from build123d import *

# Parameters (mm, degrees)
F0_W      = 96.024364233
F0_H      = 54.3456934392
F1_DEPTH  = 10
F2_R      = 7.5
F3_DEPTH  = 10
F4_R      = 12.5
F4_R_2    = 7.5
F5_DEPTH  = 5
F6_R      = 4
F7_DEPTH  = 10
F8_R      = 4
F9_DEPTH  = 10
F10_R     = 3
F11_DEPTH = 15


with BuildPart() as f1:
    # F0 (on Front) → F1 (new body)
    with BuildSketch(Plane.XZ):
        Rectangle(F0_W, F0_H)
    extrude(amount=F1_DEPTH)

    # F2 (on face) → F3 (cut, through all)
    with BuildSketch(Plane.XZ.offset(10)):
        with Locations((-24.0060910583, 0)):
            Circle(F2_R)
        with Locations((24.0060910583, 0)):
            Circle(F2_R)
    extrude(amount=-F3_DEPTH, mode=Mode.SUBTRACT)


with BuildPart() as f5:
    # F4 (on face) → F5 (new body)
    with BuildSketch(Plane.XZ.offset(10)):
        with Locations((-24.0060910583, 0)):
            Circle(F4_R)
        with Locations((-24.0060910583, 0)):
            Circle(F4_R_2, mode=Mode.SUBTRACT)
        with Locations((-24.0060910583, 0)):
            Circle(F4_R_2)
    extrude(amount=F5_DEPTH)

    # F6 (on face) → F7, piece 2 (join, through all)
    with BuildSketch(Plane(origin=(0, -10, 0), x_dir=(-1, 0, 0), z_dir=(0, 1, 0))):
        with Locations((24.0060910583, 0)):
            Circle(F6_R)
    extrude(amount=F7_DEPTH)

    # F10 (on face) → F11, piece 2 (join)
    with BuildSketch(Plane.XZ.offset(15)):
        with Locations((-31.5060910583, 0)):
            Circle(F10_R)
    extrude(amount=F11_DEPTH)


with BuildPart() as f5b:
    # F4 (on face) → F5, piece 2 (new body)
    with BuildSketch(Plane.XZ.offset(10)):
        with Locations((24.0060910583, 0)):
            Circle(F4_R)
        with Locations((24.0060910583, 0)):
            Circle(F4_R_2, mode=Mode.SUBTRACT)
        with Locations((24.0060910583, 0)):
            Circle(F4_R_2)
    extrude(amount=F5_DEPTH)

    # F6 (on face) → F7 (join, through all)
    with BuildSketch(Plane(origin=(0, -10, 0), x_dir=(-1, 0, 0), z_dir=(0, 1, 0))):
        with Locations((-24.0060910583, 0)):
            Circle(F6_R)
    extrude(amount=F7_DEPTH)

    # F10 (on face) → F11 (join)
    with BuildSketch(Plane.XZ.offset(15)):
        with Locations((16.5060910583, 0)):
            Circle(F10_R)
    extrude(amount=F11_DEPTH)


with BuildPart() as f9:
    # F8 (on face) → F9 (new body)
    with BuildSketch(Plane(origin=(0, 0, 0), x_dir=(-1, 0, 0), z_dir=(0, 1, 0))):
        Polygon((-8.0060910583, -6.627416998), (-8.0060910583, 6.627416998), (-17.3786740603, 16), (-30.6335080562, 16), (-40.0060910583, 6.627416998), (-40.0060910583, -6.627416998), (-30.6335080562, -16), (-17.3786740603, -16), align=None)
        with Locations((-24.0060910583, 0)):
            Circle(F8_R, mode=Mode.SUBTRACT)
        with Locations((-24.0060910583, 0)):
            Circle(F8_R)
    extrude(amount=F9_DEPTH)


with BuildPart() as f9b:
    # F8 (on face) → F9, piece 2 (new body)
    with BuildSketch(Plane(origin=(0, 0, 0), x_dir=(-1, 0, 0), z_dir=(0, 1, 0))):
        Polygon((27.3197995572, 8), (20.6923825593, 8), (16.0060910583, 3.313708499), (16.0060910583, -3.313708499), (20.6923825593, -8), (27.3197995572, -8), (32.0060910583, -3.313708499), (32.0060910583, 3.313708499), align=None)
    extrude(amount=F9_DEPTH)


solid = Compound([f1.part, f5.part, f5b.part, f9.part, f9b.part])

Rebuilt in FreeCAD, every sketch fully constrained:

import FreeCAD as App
import Part
import Sketcher
from FreeCAD import Vector
Q = App.Units.Quantity

doc = App.newDocument("Part")
body = doc.addObject("PartDesign::Body", "Body")

sketch1 = body.newObject("Sketcher::SketchObject", "Sketch")
sketch1.AttachmentSupport = (doc.getObject("XZ_Plane"), [""])
sketch1.MapMode = "FlatFace"
sketch1.addGeometry(Part.LineSegment(Vector(-48, 27, 0), Vector(-48, -27, 0)), False)
sketch1.addGeometry(Part.LineSegment(Vector(-48, -27, 0), Vector(48, -27, 0)), False)
sketch1.addGeometry(Part.LineSegment(Vector(48, -27, 0), Vector(48, 27, 0)), False)
sketch1.addGeometry(Part.LineSegment(Vector(48, 27, 0), Vector(-48, 27, 0)), False)
sketch1.addConstraint(Sketcher.Constraint("Coincident", 0, 2, 1, 1))
sketch1.addConstraint(Sketcher.Constraint("Coincident", 1, 2, 2, 1))
sketch1.addConstraint(Sketcher.Constraint("Coincident", 2, 2, 3, 1))
sketch1.addConstraint(Sketcher.Constraint("Coincident", 3, 2, 0, 1))
sketch1.addConstraint(Sketcher.Constraint("Vertical", 0))
sketch1.addConstraint(Sketcher.Constraint("Horizontal", 1))
sketch1.addConstraint(Sketcher.Constraint("Vertical", 2))
sketch1.addConstraint(Sketcher.Constraint("Horizontal", 3))
sketch1.addConstraint(Sketcher.Constraint("Symmetric", 0, 2, 2, 2, -1, 1))
sketch1.addConstraint(Sketcher.Constraint("DistanceX", 1, 1, 1, 2, Q("96.024364 mm")))
sketch1.addConstraint(Sketcher.Constraint("DistanceY", 0, 2, 0, 1, Q("54.345693 mm")))
pad1 = body.newObject("PartDesign::Pad", "Pad")
pad1.Profile = sketch1
pad1.Length = 10

sketch2 = body.newObject("Sketcher::SketchObject", "Sketch001")
sketch2.AttachmentSupport = (doc.getObject("XZ_Plane"), [""])
sketch2.MapMode = "FlatFace"
sketch2.AttachmentOffset = App.Placement(Vector(0, 0, 10), App.Rotation())
sketch2.addGeometry(Part.Circle(Vector(-24, 0, 0), Vector(0, 0, 1), 8), False)
sketch2.addGeometry(Part.Circle(Vector(24, 0, 0), Vector(0, 0, 1), 8), False)
sketch2.addConstraint(Sketcher.Constraint("Equal", 0, 1))
sketch2.addConstraint(Sketcher.Constraint("Symmetric", 0, 3, 1, 3, -1, 1))
sketch2.addConstraint(Sketcher.Constraint("PointOnObject", 0, 3, -1))
sketch2.addConstraint(Sketcher.Constraint("Diameter", 0, Q("15 mm")))
sketch2.addConstraint(Sketcher.Constraint("DistanceX", 0, 3, -1, 1, Q("24.006091 mm")))
pocket1 = body.newObject("PartDesign::Pocket", "Pocket")
pocket1.Profile = sketch2
pocket1.Type = "ThroughAll"
body2 = doc.addObject("PartDesign::Body", "Body001")

sketch3 = body2.newObject("Sketcher::SketchObject", "Sketch002")
sketch3.AttachmentSupport = (doc.getObject("XZ_Plane001"), [""])
sketch3.MapMode = "FlatFace"
sketch3.AttachmentOffset = App.Placement(Vector(0, 0, 10), App.Rotation())
sketch3.addGeometry(Part.Circle(Vector(-24, 0, 0), Vector(0, 0, 1), 12), False)
sketch3.addConstraint(Sketcher.Constraint("PointOnObject", 0, 3, -1))
sketch3.addConstraint(Sketcher.Constraint("Diameter", 0, Q("25 mm")))
sketch3.addConstraint(Sketcher.Constraint("DistanceX", 0, 3, -1, 1, Q("24.006091 mm")))
pad2 = body2.newObject("PartDesign::Pad", "Pad001")
pad2.Profile = sketch3
pad2.Length = 5

sketch4 = body2.newObject("Sketcher::SketchObject", "Sketch003")
sketch4.AttachmentSupport = (doc.getObject("XZ_Plane001"), [""])
sketch4.MapMode = "FlatFace"
sketch4.AttachmentOffset = App.Placement(Vector(0, 0, 10), App.Rotation())
sketch4.addGeometry(Part.Circle(Vector(-24, 0, 0), Vector(0, 0, 1), 4), False)
sketch4.addConstraint(Sketcher.Constraint("PointOnObject", 0, 3, -1))
sketch4.addConstraint(Sketcher.Constraint("Diameter", 0, Q("8 mm")))
sketch4.addConstraint(Sketcher.Constraint("DistanceX", 0, 3, -1, 1, Q("24.006091 mm")))
pad3 = body2.newObject("PartDesign::Pad", "Pad002")
pad3.Profile = sketch4
pad3.Length = 10
pad3.Reversed = True

sketch5 = body2.newObject("Sketcher::SketchObject", "Sketch004")
sketch5.AttachmentSupport = (doc.getObject("XZ_Plane001"), [""])
sketch5.MapMode = "FlatFace"
sketch5.AttachmentOffset = App.Placement(Vector(0, 0, 15), App.Rotation())
sketch5.addGeometry(Part.Circle(Vector(-31.5, 0, 0), Vector(0, 0, 1), 3), False)
sketch5.addConstraint(Sketcher.Constraint("PointOnObject", 0, 3, -1))
sketch5.addConstraint(Sketcher.Constraint("Diameter", 0, Q("6 mm")))
sketch5.addConstraint(Sketcher.Constraint("DistanceX", 0, 3, -1, 1, Q("31.506091 mm")))
pad4 = body2.newObject("PartDesign::Pad", "Pad003")
pad4.Profile = sketch5
pad4.Length = 15
body3 = doc.addObject("PartDesign::Body", "Body002")

sketch6 = body3.newObject("Sketcher::SketchObject", "Sketch005")
sketch6.AttachmentSupport = (doc.getObject("XZ_Plane002"), [""])
sketch6.MapMode = "FlatFace"
sketch6.AttachmentOffset = App.Placement(Vector(0, 0, 10), App.Rotation())
sketch6.addGeometry(Part.Circle(Vector(24, 0, 0), Vector(0, 0, 1), 12), False)
sketch6.addConstraint(Sketcher.Constraint("PointOnObject", 0, 3, -1))
sketch6.addConstraint(Sketcher.Constraint("Diameter", 0, Q("25 mm")))
sketch6.addConstraint(Sketcher.Constraint("DistanceX", -1, 1, 0, 3, Q("24.006091 mm")))
pad5 = body3.newObject("PartDesign::Pad", "Pad004")
pad5.Profile = sketch6
pad5.Length = 5

sketch7 = body3.newObject("Sketcher::SketchObject", "Sketch006")
sketch7.AttachmentSupport = (doc.getObject("XZ_Plane002"), [""])
sketch7.MapMode = "FlatFace"
sketch7.AttachmentOffset = App.Placement(Vector(0, 0, 10), App.Rotation())
sketch7.addGeometry(Part.Circle(Vector(24, 0, 0), Vector(0, 0, 1), 4), False)
sketch7.addConstraint(Sketcher.Constraint("PointOnObject", 0, 3, -1))
sketch7.addConstraint(Sketcher.Constraint("Diameter", 0, Q("8 mm")))
sketch7.addConstraint(Sketcher.Constraint("DistanceX", -1, 1, 0, 3, Q("24.006091 mm")))
pad6 = body3.newObject("PartDesign::Pad", "Pad005")
pad6.Profile = sketch7
pad6.Length = 10
pad6.Reversed = True

sketch8 = body3.newObject("Sketcher::SketchObject", "Sketch007")
sketch8.AttachmentSupport = (doc.getObject("XZ_Plane002"), [""])
sketch8.MapMode = "FlatFace"
sketch8.AttachmentOffset = App.Placement(Vector(0, 0, 15), App.Rotation())
sketch8.addGeometry(Part.Circle(Vector(16.5, 0, 0), Vector(0, 0, 1), 3), False)
sketch8.addConstraint(Sketcher.Constraint("PointOnObject", 0, 3, -1))
sketch8.addConstraint(Sketcher.Constraint("Diameter", 0, Q("6 mm")))
sketch8.addConstraint(Sketcher.Constraint("DistanceX", -1, 1, 0, 3, Q("16.506091 mm")))
pad7 = body3.newObject("PartDesign::Pad", "Pad006")
pad7.Profile = sketch8
pad7.Length = 15
body4 = doc.addObject("PartDesign::Body", "Body003")

sketch9 = body4.newObject("Sketcher::SketchObject", "Sketch008")
sketch9.AttachmentSupport = (doc.getObject("XZ_Plane003"), [""])
sketch9.MapMode = "FlatFace"
sketch9.addGeometry(Part.LineSegment(Vector(8, -7, 0), Vector(8, 7, 0)), False)
sketch9.addGeometry(Part.LineSegment(Vector(8, 7, 0), Vector(17, 16, 0)), False)
sketch9.addGeometry(Part.LineSegment(Vector(17, 16, 0), Vector(31, 16, 0)), False)
sketch9.addGeometry(Part.LineSegment(Vector(31, 16, 0), Vector(40, 7, 0)), False)
sketch9.addGeometry(Part.LineSegment(Vector(40, 7, 0), Vector(40, -7, 0)), False)
sketch9.addGeometry(Part.LineSegment(Vector(40, -7, 0), Vector(31, -16, 0)), False)
sketch9.addGeometry(Part.LineSegment(Vector(31, -16, 0), Vector(17, -16, 0)), False)
sketch9.addGeometry(Part.LineSegment(Vector(17, -16, 0), Vector(8, -7, 0)), False)
sketch9.addConstraint(Sketcher.Constraint("Coincident", 0, 2, 1, 1))
sketch9.addConstraint(Sketcher.Constraint("Coincident", 1, 2, 2, 1))
sketch9.addConstraint(Sketcher.Constraint("Coincident", 2, 2, 3, 1))
sketch9.addConstraint(Sketcher.Constraint("Coincident", 3, 2, 4, 1))
sketch9.addConstraint(Sketcher.Constraint("Coincident", 4, 2, 5, 1))
sketch9.addConstraint(Sketcher.Constraint("Coincident", 5, 2, 6, 1))
sketch9.addConstraint(Sketcher.Constraint("Coincident", 6, 2, 7, 1))
sketch9.addConstraint(Sketcher.Constraint("Coincident", 7, 2, 0, 1))
sketch9.addConstraint(Sketcher.Constraint("Vertical", 0))
sketch9.addConstraint(Sketcher.Constraint("Horizontal", 2))
sketch9.addConstraint(Sketcher.Constraint("Vertical", 4))
sketch9.addConstraint(Sketcher.Constraint("Horizontal", 6))
sketch9.addConstraint(Sketcher.Constraint("Symmetric", 2, 2, 5, 2, -1))
sketch9.addConstraint(Sketcher.Constraint("Perpendicular", 1, 3))
sketch9.addConstraint(Sketcher.Constraint("Perpendicular", 3, 5))
sketch9.addConstraint(Sketcher.Constraint("Perpendicular", 5, 7))
sketch9.addConstraint(Sketcher.Constraint("Horizontal", 0, 2, 3, 2))
sketch9.addConstraint(Sketcher.Constraint("Horizontal", 4, 2, 7, 2))
sketch9.addConstraint(Sketcher.Constraint("Vertical", 1, 2, 6, 2))
sketch9.addConstraint(Sketcher.Constraint("Equal", 6, 0))
sketch9.addConstraint(Sketcher.Constraint("DistanceY", -1, 1, 1, 2, Q("16 mm")))
sketch9.addConstraint(Sketcher.Constraint("DistanceX", 2, 1, 2, 2, Q("13.254834 mm")))
sketch9.addConstraint(Sketcher.Constraint("DistanceX", -1, 1, 0, 2, Q("8.006091 mm")))
pad8 = body4.newObject("PartDesign::Pad", "Pad007")
pad8.Profile = sketch9
pad8.Length = 10
pad8.Reversed = True
body5 = doc.addObject("PartDesign::Body", "Body004")

sketch10 = body5.newObject("Sketcher::SketchObject", "Sketch009")
sketch10.AttachmentSupport = (doc.getObject("XZ_Plane004"), [""])
sketch10.MapMode = "FlatFace"
sketch10.addGeometry(Part.LineSegment(Vector(-27, 8, 0), Vector(-21, 8, 0)), False)
sketch10.addGeometry(Part.LineSegment(Vector(-21, 8, 0), Vector(-16, 3, 0)), False)
sketch10.addGeometry(Part.LineSegment(Vector(-16, 3, 0), Vector(-16, -3, 0)), False)
sketch10.addGeometry(Part.LineSegment(Vector(-16, -3, 0), Vector(-21, -8, 0)), False)
sketch10.addGeometry(Part.LineSegment(Vector(-21, -8, 0), Vector(-27, -8, 0)), False)
sketch10.addGeometry(Part.LineSegment(Vector(-27, -8, 0), Vector(-32, -3, 0)), False)
sketch10.addGeometry(Part.LineSegment(Vector(-32, -3, 0), Vector(-32, 3, 0)), False)
sketch10.addGeometry(Part.LineSegment(Vector(-32, 3, 0), Vector(-27, 8, 0)), False)
sketch10.addConstraint(Sketcher.Constraint("Coincident", 0, 2, 1, 1))
sketch10.addConstraint(Sketcher.Constraint("Coincident", 1, 2, 2, 1))
sketch10.addConstraint(Sketcher.Constraint("Coincident", 2, 2, 3, 1))
sketch10.addConstraint(Sketcher.Constraint("Coincident", 3, 2, 4, 1))
sketch10.addConstraint(Sketcher.Constraint("Coincident", 4, 2, 5, 1))
sketch10.addConstraint(Sketcher.Constraint("Coincident", 5, 2, 6, 1))
sketch10.addConstraint(Sketcher.Constraint("Coincident", 6, 2, 7, 1))
sketch10.addConstraint(Sketcher.Constraint("Coincident", 7, 2, 0, 1))
sketch10.addConstraint(Sketcher.Constraint("Horizontal", 0))
sketch10.addConstraint(Sketcher.Constraint("Vertical", 2))
sketch10.addConstraint(Sketcher.Constraint("Horizontal", 4))
sketch10.addConstraint(Sketcher.Constraint("Vertical", 6))
sketch10.addConstraint(Sketcher.Constraint("Symmetric", 0, 2, 3, 2, -1))
sketch10.addConstraint(Sketcher.Constraint("Perpendicular", 1, 3))
sketch10.addConstraint(Sketcher.Constraint("Perpendicular", 3, 5))
sketch10.addConstraint(Sketcher.Constraint("Perpendicular", 5, 7))
sketch10.addConstraint(Sketcher.Constraint("Horizontal", 2, 2, 5, 2))
sketch10.addConstraint(Sketcher.Constraint("Horizontal", 1, 2, 6, 2))
sketch10.addConstraint(Sketcher.Constraint("Vertical", 4, 2, 7, 2))
sketch10.addConstraint(Sketcher.Constraint("Equal", 4, 2))
sketch10.addConstraint(Sketcher.Constraint("DistanceY", -1, 1, 0, 2, Q("8 mm")))
sketch10.addConstraint(Sketcher.Constraint("DistanceX", 4, 2, -1, 1, Q("27.3198 mm")))
sketch10.addConstraint(Sketcher.Constraint("DistanceX", 0, 1, 0, 2, Q("6.627417 mm")))
pad9 = body5.newObject("PartDesign::Pad", "Pad008")
pad9.Profile = sketch10
pad9.Length = 10
pad9.Reversed = True

doc.recompute()
